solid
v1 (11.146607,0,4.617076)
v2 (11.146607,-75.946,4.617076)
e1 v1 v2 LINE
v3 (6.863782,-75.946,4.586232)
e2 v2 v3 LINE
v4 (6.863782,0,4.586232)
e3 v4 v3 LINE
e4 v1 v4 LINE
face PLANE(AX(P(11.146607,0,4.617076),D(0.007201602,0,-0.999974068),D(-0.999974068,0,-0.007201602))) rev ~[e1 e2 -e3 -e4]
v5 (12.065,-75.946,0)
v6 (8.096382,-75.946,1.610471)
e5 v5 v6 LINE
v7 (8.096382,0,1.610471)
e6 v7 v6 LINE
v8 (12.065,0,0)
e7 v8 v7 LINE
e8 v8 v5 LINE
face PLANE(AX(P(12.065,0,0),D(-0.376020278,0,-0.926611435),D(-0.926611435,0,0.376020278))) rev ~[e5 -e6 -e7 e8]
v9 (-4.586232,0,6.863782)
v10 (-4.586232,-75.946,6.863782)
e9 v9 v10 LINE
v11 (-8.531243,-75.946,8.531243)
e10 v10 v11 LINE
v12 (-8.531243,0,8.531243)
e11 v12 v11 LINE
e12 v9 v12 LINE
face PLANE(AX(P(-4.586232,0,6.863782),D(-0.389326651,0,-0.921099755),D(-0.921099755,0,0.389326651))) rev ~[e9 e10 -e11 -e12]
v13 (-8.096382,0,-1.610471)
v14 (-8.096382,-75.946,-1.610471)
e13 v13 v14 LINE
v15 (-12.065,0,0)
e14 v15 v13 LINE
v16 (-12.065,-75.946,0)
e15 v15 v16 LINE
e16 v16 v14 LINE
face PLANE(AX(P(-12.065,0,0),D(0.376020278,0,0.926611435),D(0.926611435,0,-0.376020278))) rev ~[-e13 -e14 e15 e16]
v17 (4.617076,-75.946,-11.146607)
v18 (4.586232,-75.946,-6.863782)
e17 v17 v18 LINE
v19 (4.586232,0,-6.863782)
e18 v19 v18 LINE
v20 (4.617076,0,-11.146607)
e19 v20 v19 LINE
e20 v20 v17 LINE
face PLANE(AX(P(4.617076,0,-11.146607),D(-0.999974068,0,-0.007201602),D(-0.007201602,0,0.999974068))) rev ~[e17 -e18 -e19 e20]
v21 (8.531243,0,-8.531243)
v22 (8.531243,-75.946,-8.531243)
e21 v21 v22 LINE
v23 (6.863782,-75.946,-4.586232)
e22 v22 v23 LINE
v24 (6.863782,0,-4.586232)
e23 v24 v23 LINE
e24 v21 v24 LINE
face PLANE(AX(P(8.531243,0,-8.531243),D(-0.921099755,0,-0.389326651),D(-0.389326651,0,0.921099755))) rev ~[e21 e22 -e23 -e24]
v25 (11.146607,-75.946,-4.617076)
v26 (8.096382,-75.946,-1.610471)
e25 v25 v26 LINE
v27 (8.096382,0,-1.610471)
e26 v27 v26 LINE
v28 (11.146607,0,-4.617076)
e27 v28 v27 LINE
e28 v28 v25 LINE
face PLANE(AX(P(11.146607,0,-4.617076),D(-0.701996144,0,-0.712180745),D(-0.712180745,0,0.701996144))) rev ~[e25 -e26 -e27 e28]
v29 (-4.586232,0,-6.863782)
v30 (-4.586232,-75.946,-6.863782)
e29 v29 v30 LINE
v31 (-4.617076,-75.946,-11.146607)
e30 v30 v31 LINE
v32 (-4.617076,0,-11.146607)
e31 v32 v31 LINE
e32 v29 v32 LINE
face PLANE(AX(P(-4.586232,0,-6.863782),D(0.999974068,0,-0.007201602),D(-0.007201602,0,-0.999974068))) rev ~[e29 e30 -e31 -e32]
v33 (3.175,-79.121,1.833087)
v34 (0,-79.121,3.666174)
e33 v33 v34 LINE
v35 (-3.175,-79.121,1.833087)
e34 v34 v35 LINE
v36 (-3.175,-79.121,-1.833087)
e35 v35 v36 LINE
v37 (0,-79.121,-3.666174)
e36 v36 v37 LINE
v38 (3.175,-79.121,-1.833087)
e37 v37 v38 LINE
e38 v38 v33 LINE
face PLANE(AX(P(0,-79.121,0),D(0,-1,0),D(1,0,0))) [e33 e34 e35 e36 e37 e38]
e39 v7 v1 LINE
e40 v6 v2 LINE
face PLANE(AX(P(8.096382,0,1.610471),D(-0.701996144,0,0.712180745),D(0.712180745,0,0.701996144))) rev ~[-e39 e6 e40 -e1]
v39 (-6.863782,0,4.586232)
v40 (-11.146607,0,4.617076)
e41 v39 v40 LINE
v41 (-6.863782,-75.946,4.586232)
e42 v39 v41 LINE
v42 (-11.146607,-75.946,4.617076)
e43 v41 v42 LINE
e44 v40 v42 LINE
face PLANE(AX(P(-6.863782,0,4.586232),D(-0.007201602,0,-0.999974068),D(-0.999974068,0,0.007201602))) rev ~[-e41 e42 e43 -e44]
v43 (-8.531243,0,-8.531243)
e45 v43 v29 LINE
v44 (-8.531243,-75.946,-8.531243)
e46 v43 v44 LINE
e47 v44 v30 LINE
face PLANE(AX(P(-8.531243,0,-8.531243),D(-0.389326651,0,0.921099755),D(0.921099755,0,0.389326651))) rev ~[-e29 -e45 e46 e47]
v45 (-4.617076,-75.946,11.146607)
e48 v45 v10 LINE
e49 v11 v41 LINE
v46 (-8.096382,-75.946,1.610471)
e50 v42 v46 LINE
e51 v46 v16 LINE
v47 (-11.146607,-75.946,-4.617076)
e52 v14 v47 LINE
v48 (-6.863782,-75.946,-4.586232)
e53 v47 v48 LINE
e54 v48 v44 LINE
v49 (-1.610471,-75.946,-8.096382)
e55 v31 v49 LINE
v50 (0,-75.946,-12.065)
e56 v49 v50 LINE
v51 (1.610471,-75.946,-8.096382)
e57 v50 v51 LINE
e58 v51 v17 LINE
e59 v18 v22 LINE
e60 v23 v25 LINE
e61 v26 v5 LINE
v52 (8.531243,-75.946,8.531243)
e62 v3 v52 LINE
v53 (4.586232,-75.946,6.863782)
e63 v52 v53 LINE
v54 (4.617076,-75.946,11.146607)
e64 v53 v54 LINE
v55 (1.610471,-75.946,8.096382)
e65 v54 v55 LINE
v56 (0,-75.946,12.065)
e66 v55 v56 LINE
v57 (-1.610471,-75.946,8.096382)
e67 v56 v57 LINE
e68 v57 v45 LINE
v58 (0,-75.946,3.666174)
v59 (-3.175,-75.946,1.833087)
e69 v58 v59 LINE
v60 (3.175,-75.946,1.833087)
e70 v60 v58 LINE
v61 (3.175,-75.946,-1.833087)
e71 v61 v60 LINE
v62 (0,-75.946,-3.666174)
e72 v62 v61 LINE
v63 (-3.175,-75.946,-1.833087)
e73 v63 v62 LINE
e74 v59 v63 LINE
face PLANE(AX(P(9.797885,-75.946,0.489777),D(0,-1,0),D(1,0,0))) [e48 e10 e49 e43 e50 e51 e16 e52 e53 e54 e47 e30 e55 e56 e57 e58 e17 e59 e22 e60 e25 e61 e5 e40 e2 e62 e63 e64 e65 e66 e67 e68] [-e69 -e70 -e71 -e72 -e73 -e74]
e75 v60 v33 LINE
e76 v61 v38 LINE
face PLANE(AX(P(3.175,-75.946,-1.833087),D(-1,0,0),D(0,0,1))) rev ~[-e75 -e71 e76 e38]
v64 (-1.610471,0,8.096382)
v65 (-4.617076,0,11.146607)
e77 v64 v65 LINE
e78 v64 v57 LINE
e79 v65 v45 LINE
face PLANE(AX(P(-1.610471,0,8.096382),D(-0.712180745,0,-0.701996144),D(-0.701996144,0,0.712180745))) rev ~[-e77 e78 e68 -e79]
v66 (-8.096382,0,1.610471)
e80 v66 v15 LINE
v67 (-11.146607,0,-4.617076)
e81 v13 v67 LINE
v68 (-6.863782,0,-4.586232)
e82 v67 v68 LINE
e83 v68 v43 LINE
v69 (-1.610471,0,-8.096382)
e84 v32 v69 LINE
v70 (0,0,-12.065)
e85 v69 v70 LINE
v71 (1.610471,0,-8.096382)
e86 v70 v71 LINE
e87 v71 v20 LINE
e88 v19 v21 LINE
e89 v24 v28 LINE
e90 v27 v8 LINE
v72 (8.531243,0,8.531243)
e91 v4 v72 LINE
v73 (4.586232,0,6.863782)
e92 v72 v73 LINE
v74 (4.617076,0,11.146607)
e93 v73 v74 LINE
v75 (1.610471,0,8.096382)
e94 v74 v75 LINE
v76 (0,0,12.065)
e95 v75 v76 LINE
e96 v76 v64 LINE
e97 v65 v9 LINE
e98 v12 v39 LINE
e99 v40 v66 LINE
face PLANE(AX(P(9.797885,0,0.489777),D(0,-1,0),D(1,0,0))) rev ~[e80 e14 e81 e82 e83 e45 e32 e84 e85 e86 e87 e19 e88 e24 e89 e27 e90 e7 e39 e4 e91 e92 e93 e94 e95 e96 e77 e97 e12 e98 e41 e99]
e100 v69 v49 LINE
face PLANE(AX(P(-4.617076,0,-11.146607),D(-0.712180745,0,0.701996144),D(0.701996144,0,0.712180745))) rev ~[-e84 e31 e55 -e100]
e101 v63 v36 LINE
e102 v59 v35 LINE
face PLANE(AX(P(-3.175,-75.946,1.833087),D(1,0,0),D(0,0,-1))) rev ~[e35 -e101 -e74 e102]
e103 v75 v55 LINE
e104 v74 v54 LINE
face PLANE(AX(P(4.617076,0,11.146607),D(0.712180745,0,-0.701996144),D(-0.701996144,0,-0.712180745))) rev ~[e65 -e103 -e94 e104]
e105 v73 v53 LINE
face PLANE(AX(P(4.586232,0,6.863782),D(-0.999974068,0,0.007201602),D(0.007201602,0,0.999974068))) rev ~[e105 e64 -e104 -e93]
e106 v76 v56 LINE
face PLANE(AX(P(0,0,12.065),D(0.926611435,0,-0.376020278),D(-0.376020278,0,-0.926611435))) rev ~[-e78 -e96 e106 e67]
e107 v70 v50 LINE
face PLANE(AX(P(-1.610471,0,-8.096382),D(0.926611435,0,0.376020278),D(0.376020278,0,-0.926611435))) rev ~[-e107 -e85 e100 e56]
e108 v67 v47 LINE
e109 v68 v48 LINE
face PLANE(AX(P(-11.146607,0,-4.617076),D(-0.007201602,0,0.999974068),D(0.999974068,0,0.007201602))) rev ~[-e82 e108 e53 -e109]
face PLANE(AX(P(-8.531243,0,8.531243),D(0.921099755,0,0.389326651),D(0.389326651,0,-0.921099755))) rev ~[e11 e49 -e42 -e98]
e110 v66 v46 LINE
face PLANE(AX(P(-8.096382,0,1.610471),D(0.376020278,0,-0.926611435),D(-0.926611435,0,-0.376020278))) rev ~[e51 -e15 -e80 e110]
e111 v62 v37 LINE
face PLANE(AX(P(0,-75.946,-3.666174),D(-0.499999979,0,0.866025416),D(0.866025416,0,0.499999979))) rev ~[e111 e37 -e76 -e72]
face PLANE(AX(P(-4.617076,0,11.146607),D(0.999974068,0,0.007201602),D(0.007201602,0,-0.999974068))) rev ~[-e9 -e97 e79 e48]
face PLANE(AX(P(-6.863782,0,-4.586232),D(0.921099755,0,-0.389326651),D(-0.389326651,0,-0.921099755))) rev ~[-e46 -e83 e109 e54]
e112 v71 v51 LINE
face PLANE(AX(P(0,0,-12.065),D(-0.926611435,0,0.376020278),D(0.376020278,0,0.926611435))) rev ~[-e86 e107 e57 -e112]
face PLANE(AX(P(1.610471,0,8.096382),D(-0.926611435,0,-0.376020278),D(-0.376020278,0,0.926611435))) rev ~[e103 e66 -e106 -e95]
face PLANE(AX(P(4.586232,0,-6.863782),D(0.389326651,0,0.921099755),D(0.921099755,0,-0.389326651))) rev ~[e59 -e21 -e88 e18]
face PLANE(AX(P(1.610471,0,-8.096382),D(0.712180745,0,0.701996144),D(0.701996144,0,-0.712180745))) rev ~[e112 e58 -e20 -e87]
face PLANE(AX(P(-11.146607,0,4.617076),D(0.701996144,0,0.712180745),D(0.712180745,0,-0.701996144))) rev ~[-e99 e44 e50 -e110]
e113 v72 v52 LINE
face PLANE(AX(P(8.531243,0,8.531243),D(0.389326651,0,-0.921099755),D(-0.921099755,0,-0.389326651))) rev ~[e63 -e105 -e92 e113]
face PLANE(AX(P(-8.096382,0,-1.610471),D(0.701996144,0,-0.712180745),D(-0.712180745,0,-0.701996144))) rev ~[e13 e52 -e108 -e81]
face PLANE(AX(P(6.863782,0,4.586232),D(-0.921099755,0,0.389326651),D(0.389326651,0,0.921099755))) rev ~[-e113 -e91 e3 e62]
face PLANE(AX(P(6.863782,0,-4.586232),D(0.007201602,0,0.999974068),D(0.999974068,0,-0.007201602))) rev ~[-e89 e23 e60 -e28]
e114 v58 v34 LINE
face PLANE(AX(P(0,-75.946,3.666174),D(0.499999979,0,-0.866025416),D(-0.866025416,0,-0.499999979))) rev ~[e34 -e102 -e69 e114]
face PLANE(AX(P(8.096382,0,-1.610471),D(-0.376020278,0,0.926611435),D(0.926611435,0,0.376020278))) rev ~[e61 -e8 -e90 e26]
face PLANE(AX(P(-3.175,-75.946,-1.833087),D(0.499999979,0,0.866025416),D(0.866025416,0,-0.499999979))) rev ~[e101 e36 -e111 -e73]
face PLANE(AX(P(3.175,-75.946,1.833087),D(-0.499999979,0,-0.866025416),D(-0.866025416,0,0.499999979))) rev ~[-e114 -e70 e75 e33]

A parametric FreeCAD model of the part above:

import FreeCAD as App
import Part
import Sketcher

V = App.Vector
Q = App.Units.Quantity

doc = App.newDocument("Part")
params = doc.addObject("Spreadsheet::Sheet", "Params")
for row, (alias, value) in enumerate([
    ("pad1_length", "2.99 in"),
    ("pad2_length", "0.125 in"),
], start=1):
    params.set(f"A{row}", alias)
    params.set(f"B{row}", "=" + value)
    params.setAlias(f"B{row}", alias)

body = doc.addObject("PartDesign::Body", "Body")

sketch1 = body.newObject("Sketcher::SketchObject", "Sketch")
sketch1.AttachmentSupport = (doc.getObject("XZ_Plane"), [""])
sketch1.MapMode = "FlatFace"
sketch1.addGeometry([
    Part.LineSegment(V(0, -12.1, 0), V(1.6, -8.1, 0)),
    Part.LineSegment(V(1.6, -8.1, 0), V(4.6, -11.1, 0)),
    Part.LineSegment(V(4.6, -11.1, 0), V(4.6, -6.9, 0)),
    Part.LineSegment(V(4.6, -6.9, 0), V(8.5, -8.5, 0)),
    Part.LineSegment(V(8.5, -8.5, 0), V(6.9, -4.6, 0)),
    Part.LineSegment(V(6.9, -4.6, 0), V(11.1, -4.6, 0)),
    Part.LineSegment(V(11.1, -4.6, 0), V(8.1, -1.6, 0)),
    Part.LineSegment(V(8.1, -1.6, 0), V(12.1, 0, 0)),
    Part.LineSegment(V(12.1, 0, 0), V(8.1, 1.6, 0)),
    Part.LineSegment(V(8.1, 1.6, 0), V(11.1, 4.6, 0)),
    Part.LineSegment(V(11.1, 4.6, 0), V(6.9, 4.6, 0)),
    Part.LineSegment(V(6.9, 4.6, 0), V(8.5, 8.5, 0)),
    Part.LineSegment(V(8.5, 8.5, 0), V(4.6, 6.9, 0)),
    Part.LineSegment(V(4.6, 6.9, 0), V(4.6, 11.1, 0)),
    Part.LineSegment(V(4.6, 11.1, 0), V(1.6, 8.1, 0)),
    Part.LineSegment(V(1.6, 8.1, 0), V(0, 12.1, 0)),
    Part.LineSegment(V(0, 12.1, 0), V(-1.6, 8.1, 0)),
    Part.LineSegment(V(-1.6, 8.1, 0), V(-4.6, 11.1, 0)),
    Part.LineSegment(V(-4.6, 11.1, 0), V(-4.6, 6.9, 0)),
    Part.LineSegment(V(-4.6, 6.9, 0), V(-8.5, 8.5, 0)),
    Part.LineSegment(V(-8.5, 8.5, 0), V(-6.9, 4.6, 0)),
    Part.LineSegment(V(-6.9, 4.6, 0), V(-11.1, 4.6, 0)),
    Part.LineSegment(V(-11.1, 4.6, 0), V(-8.1, 1.6, 0)),
    Part.LineSegment(V(-8.1, 1.6, 0), V(-12.1, 0, 0)),
    Part.LineSegment(V(-12.1, 0, 0), V(-8.1, -1.6, 0)),
    Part.LineSegment(V(-8.1, -1.6, 0), V(-11.1, -4.6, 0)),
    Part.LineSegment(V(-11.1, -4.6, 0), V(-6.9, -4.6, 0)),
    Part.LineSegment(V(-6.9, -4.6, 0), V(-8.5, -8.5, 0)),
    Part.LineSegment(V(-8.5, -8.5, 0), V(-4.6, -6.9, 0)),
    Part.LineSegment(V(-4.6, -6.9, 0), V(-4.6, -11.1, 0)),
    Part.LineSegment(V(-4.6, -11.1, 0), V(-1.6, -8.1, 0)),
    Part.LineSegment(V(-1.6, -8.1, 0), V(0, -12.1, 0)),
], False)
sketch1.addConstraint([
    Sketcher.Constraint("Coincident", 0, 2, 1, 1),
    Sketcher.Constraint("Coincident", 1, 2, 2, 1),
    Sketcher.Constraint("Coincident", 2, 2, 3, 1),
    Sketcher.Constraint("Coincident", 3, 2, 4, 1),
    Sketcher.Constraint("Coincident", 4, 2, 5, 1),
    Sketcher.Constraint("Coincident", 5, 2, 6, 1),
    Sketcher.Constraint("Coincident", 6, 2, 7, 1),
    Sketcher.Constraint("Coincident", 7, 2, 8, 1),
    Sketcher.Constraint("Coincident", 8, 2, 9, 1),
    Sketcher.Constraint("Coincident", 9, 2, 10, 1),
    Sketcher.Constraint("Coincident", 10, 2, 11, 1),
    Sketcher.Constraint("Coincident", 11, 2, 12, 1),
    Sketcher.Constraint("Coincident", 12, 2, 13, 1),
    Sketcher.Constraint("Coincident", 13, 2, 14, 1),
    Sketcher.Constraint("Coincident", 14, 2, 15, 1),
    Sketcher.Constraint("Coincident", 15, 2, 16, 1),
    Sketcher.Constraint("Coincident", 16, 2, 17, 1),
    Sketcher.Constraint("Coincident", 17, 2, 18, 1),
    Sketcher.Constraint("Coincident", 18, 2, 19, 1),
    Sketcher.Constraint("Coincident", 19, 2, 20, 1),
    Sketcher.Constraint("Coincident", 20, 2, 21, 1),
    Sketcher.Constraint("Coincident", 21, 2, 22, 1),
    Sketcher.Constraint("Coincident", 22, 2, 23, 1),
    Sketcher.Constraint("Coincident", 23, 2, 24, 1),
    Sketcher.Constraint("Coincident", 24, 2, 25, 1),
    Sketcher.Constraint("Coincident", 25, 2, 26, 1),
    Sketcher.Constraint("Coincident", 26, 2, 27, 1),
    Sketcher.Constraint("Coincident", 27, 2, 28, 1),
    Sketcher.Constraint("Coincident", 28, 2, 29, 1),
    Sketcher.Constraint("Coincident", 29, 2, 30, 1),
    Sketcher.Constraint("Coincident", 30, 2, 31, 1),
    Sketcher.Constraint("Coincident", 31, 2, 0, 1),
    Sketcher.Constraint("Symmetric", 0, 2, 16, 2, -1, 1),
    Sketcher.Constraint("Symmetric", 1, 2, 17, 2, -1, 1),
    Sketcher.Constraint("Symmetric", 2, 2, 18, 2, -1, 1),
    Sketcher.Constraint("Symmetric", 3, 2, 19, 2, -1, 1),
    Sketcher.Constraint("Symmetric", 4, 2, 20, 2, -1, 1),
    Sketcher.Constraint("Symmetric", 5, 2, 21, 2, -1, 1),
    Sketcher.Constraint("Symmetric", 6, 2, 22, 2, -1, 1),
    Sketcher.Constraint("Symmetric", 7, 2, 23, 2, -1, 1),
    Sketcher.Constraint("Symmetric", 8, 2, 24, 2, -1, 1),
    Sketcher.Constraint("Symmetric", 9, 2, 25, 2, -1, 1),
    Sketcher.Constraint("Symmetric", 10, 2, 26, 2, -1, 1),
    Sketcher.Constraint("Symmetric", 11, 2, 27, 2, -1, 1),
    Sketcher.Constraint("Symmetric", 12, 2, 28, 2, -1, 1),
    Sketcher.Constraint("Symmetric", 13, 2, 29, 2, -1, 1),
    Sketcher.Constraint("Symmetric", 14, 2, 30, 2, -1, 1),
    Sketcher.Constraint("Symmetric", 15, 2, 31, 2, -1, 1),
    Sketcher.Constraint("Symmetric", 14, 2, 16, 2, -2),
    Sketcher.Constraint("Symmetric", 13, 2, 17, 2, -2),
    Sketcher.Constraint("Symmetric", 12, 2, 18, 2, -2),
    Sketcher.Constraint("Symmetric", 11, 2, 19, 2, -2),
    Sketcher.Constraint("Symmetric", 10, 2, 20, 2, -2),
    Sketcher.Constraint("Symmetric", 9, 2, 21, 2, -2),
    Sketcher.Constraint("Symmetric", 8, 2, 22, 2, -2),
    Sketcher.Constraint("PointOnObject", 7, 2, -1),
    Sketcher.Constraint("PointOnObject", 15, 2, -2),
    Sketcher.Constraint("Perpendicular", 0, 8),
    Sketcher.Constraint("Perpendicular", 1, 9),
    Sketcher.Constraint("Perpendicular", 2, 10),
    Sketcher.Constraint("Perpendicular", 3, 11),
    Sketcher.Constraint("Equal", 0, 1),
    Sketcher.Constraint("Equal", 1, 2),
    Sketcher.Constraint("Equal", 2, 3),
    Sketcher.Constraint("Equal", 3, 4),
    Sketcher.Constraint("Equal", 4, 5),
    Sketcher.Constraint("Equal", 5, 6),
    Sketcher.Constraint("Equal", 6, 7),
    Sketcher.Constraint("DistanceX", -1, 1, 7, 2, Q("0.475 in")),
    Sketcher.Constraint("DistanceY", 0, 2, 2, 2, Q("1.2326 mm")),
    Sketcher.Constraint("DistanceX", -1, 1, 0, 2, Q("1.610471 mm")),
    Sketcher.Constraint("DistanceY", 2, 2, -1, 1, Q("6.863782 mm")),
    Sketcher.Constraint("DistanceX", 0, 2, 2, 2, Q("2.975761 mm")),
])
pad1 = body.newObject("PartDesign::Pad", "Pad")
pad1.Profile = sketch1
pad1.setExpression("Length", "Params.pad1_length")

sketch2 = body.newObject("Sketcher::SketchObject", "Sketch001")
sketch2.AttachmentSupport = (doc.getObject("XZ_Plane"), [""])
sketch2.MapMode = "FlatFace"
sketch2.AttachmentOffset = App.Placement(V(0, 0, 2.99 * 25.4), App.Rotation())
sketch2.addGeometry([
    Part.LineSegment(V(-3.2, 1.8, 0), V(-3.2, -1.8, 0)),
    Part.LineSegment(V(-3.2, -1.8, 0), V(0, -3.7, 0)),
    Part.LineSegment(V(0, -3.7, 0), V(3.2, -1.8, 0)),
    Part.LineSegment(V(3.2, -1.8, 0), V(3.2, 1.8, 0)),
    Part.LineSegment(V(3.2, 1.8, 0), V(0, 3.7, 0)),
    Part.LineSegment(V(0, 3.7, 0), V(-3.2, 1.8, 0)),
], False)
sketch2.addConstraint([
    Sketcher.Constraint("Coincident", 0, 2, 1, 1),
    Sketcher.Constraint("Coincident", 1, 2, 2, 1),
    Sketcher.Constraint("Coincident", 2, 2, 3, 1),
    Sketcher.Constraint("Coincident", 3, 2, 4, 1),
    Sketcher.Constraint("Coincident", 4, 2, 5, 1),
    Sketcher.Constraint("Coincident", 5, 2, 0, 1),
    Sketcher.Constraint("Vertical", 0),
    Sketcher.Constraint("Vertical", 3),
    Sketcher.Constraint("Symmetric", 0, 2, 3, 2, -1, 1),
    Sketcher.Constraint("Symmetric", 1, 2, 4, 2, -1, 1),
    Sketcher.Constraint("PointOnObject", 1, 2, -2),
    Sketcher.Constraint("Parallel", 2, 5),
    Sketcher.Constraint("Horizontal", 0, 2, 2, 2),
    Sketcher.Constraint("Angle", 1, Q("-29.999999 deg")),
    Sketcher.Constraint("DistanceX", 0, 2, 2, 2, Q("0.25 in")),
    Sketcher.Constraint("DistanceY", 0, 2, 0, 1, Q("3.666174 mm")),
])
pad2 = body.newObject("PartDesign::Pad", "Pad001")
pad2.Profile = sketch2
pad2.setExpression("Length", "Params.pad2_length")

doc.recompute()
